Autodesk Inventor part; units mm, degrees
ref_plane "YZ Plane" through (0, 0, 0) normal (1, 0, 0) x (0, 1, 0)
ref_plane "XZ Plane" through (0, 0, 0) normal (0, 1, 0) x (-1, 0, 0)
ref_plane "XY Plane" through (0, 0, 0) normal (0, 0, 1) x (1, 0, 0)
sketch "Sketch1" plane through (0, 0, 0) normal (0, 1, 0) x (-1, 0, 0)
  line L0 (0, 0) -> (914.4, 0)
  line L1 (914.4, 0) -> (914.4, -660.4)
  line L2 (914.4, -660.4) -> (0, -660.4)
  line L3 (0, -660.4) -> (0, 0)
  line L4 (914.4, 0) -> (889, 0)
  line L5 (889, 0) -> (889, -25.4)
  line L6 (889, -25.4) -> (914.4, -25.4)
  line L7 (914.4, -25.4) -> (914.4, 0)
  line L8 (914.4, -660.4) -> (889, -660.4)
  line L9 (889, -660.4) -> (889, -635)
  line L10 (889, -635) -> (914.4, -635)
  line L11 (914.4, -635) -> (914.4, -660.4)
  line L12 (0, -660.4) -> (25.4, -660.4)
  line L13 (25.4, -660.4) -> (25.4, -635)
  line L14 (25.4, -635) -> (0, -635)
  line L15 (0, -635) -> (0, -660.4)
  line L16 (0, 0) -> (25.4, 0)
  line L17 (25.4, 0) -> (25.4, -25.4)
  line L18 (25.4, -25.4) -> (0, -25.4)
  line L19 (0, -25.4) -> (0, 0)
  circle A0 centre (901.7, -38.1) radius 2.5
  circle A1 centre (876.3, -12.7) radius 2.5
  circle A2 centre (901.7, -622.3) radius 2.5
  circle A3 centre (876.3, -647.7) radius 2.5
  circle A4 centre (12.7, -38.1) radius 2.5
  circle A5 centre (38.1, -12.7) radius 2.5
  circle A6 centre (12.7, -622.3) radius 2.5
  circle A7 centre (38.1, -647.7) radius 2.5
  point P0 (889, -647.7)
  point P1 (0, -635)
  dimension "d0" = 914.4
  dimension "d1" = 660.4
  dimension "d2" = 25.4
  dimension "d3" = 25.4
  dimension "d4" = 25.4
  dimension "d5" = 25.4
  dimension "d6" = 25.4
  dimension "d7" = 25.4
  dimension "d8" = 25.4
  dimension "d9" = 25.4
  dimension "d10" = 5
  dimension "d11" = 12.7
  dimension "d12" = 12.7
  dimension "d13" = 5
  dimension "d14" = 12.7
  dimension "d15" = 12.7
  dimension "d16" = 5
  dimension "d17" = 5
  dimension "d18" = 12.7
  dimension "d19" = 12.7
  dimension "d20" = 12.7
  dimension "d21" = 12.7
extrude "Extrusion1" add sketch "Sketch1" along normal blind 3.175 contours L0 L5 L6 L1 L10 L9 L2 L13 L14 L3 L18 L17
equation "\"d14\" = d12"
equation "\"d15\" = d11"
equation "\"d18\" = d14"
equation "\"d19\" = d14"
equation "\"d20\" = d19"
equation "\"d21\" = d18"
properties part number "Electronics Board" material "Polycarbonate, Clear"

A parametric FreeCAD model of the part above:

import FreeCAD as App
import Part
import Sketcher
Q = App.Units.Quantity


def add_polygon(sketch, points):
    """Adds a closed chain of lines whose ends are joined by coincident constraints."""
    first, n = sketch.GeometryCount, len(points)
    for a, b in zip(points, points[1:] + points[:1]):
        sketch.addGeometry(Part.LineSegment(App.Vector(*a, 0), App.Vector(*b, 0)), False)
    for i in range(n):
        sketch.addConstraint(Sketcher.Constraint("Coincident", first + i, 2, first + (i + 1) % n, 1))

doc = App.newDocument("Part")
body = doc.addObject("PartDesign::Body", "Body")

sketch1 = doc.addObject("Sketcher::SketchObject", "Sketch")
body.addObject(sketch1)
sketch1.AttachmentSupport = (doc.XZ_Plane, [""])
sketch1.MapMode = "FlatFace"
add_polygon(sketch1, [(-889, 0), (-25.4, 0), (-25.4, -25.4), (0, -25.4), (0, -635), (-25.4, -635), (-25.4, -660.4), (-889, -660.4), (-889, -635), (-914.4, -635), (-914.4, -25.4), (-889, -25.4)])
sketch1.addGeometry(Part.Circle(App.Vector(-38.1, -647.7, 0), App.Vector(0, 0, 1), 2.5), False)
sketch1.addGeometry(Part.Circle(App.Vector(-12.7, -622.3, 0), App.Vector(0, 0, 1), 2.5), False)
sketch1.addGeometry(Part.Circle(App.Vector(-876.3, -647.7, 0), App.Vector(0, 0, 1), 2.5), False)
sketch1.addGeometry(Part.Circle(App.Vector(-901.7, -622.3, 0), App.Vector(0, 0, 1), 2.5), False)
sketch1.addGeometry(Part.Circle(App.Vector(-12.7, -38.1, 0), App.Vector(0, 0, 1), 2.5), False)
sketch1.addGeometry(Part.Circle(App.Vector(-38.1, -12.7, 0), App.Vector(0, 0, 1), 2.5), False)
sketch1.addGeometry(Part.Circle(App.Vector(-901.7, -38.1, 0), App.Vector(0, 0, 1), 2.5), False)
sketch1.addGeometry(Part.Circle(App.Vector(-876.3, -12.7, 0), App.Vector(0, 0, 1), 2.5), False)
sketch1.addConstraint([
    Sketcher.Constraint("Horizontal", 0),
    Sketcher.Constraint("Vertical", 1),
    Sketcher.Constraint("Horizontal", 2),
    Sketcher.Constraint("Vertical", 3),
    Sketcher.Constraint("Horizontal", 4),
    Sketcher.Constraint("Vertical", 5),
    Sketcher.Constraint("Horizontal", 6),
    Sketcher.Constraint("Vertical", 7),
    Sketcher.Constraint("Horizontal", 8),
    Sketcher.Constraint("Vertical", 9),
    Sketcher.Constraint("Horizontal", 10),
    Sketcher.Constraint("Vertical", 11),
    Sketcher.Constraint("Equal", 12, 13),
    Sketcher.Constraint("Equal", 13, 14),
    Sketcher.Constraint("Equal", 14, 15),
    Sketcher.Constraint("Equal", 15, 16),
    Sketcher.Constraint("Equal", 16, 17),
    Sketcher.Constraint("Equal", 17, 18),
    Sketcher.Constraint("Equal", 18, 19),
    Sketcher.Constraint("PointOnObject", 0, 2, -1),
    Sketcher.Constraint("PointOnObject", 2, 2, -2),
    Sketcher.Constraint("Horizontal", 12, 3, 14, 3),
    Sketcher.Constraint("Horizontal", 13, 3, 15, 3),
    Sketcher.Constraint("Horizontal", 16, 3, 18, 3),
    Sketcher.Constraint("Horizontal", 17, 3, 19, 3),
    Sketcher.Constraint("Horizontal", 4, 2, 7, 2),
    Sketcher.Constraint("Horizontal", 2, 2, 9, 2),
    Sketcher.Constraint("Vertical", 13, 3, 16, 3),
    Sketcher.Constraint("Vertical", 12, 3, 17, 3),
    Sketcher.Constraint("Vertical", 15, 3, 18, 3),
    Sketcher.Constraint("Vertical", 14, 3, 19, 3),
    Sketcher.Constraint("Vertical", 1, 2, 4, 2),
    Sketcher.Constraint("Vertical", 7, 2, 10, 2),
    Sketcher.Constraint("Equal", 4, 8),
    Sketcher.Constraint("Equal", 10, 1),
    Sketcher.Constraint("Equal", 1, 5),
    Sketcher.Constraint("DistanceX", 2, 1, 2, 2, Q("1 in")),
    Sketcher.Constraint("DistanceY", 5, 2, -1, 1, Q("26 in")),
    Sketcher.Constraint("DistanceX", 8, 2, -1, 1, Q("36 in")),
    Sketcher.Constraint("DistanceX", 12, 3, 13, 3, Q("1 in")),
    Sketcher.Constraint("DistanceY", 12, 3, 13, 3, Q("1 in")),
    Sketcher.Constraint("DistanceX", 15, 3, 14, 3, Q("1 in")),
    Sketcher.Constraint("DistanceY", 16, 3, 17, 3, Q("1 in")),
    Sketcher.Constraint("DistanceX", 13, 3, -1, 1, Q("0.5 in")),
    Sketcher.Constraint("DistanceY", 17, 3, -1, 1, Q("0.5 in")),
    Sketcher.Constraint("DistanceY", 3, 2, 13, 3, Q("0.5 in")),
    Sketcher.Constraint("DistanceX", 6, 2, 14, 3, Q("0.5 in")),
    Sketcher.Constraint("Diameter", 12, 5.0),
])
pad1 = doc.addObject("PartDesign::Pad", "Pad")
body.addObject(pad1)
pad1.Profile = sketch1
pad1.Length = Q("0.125 in")
pad1.Reversed = True

doc.recompute()
